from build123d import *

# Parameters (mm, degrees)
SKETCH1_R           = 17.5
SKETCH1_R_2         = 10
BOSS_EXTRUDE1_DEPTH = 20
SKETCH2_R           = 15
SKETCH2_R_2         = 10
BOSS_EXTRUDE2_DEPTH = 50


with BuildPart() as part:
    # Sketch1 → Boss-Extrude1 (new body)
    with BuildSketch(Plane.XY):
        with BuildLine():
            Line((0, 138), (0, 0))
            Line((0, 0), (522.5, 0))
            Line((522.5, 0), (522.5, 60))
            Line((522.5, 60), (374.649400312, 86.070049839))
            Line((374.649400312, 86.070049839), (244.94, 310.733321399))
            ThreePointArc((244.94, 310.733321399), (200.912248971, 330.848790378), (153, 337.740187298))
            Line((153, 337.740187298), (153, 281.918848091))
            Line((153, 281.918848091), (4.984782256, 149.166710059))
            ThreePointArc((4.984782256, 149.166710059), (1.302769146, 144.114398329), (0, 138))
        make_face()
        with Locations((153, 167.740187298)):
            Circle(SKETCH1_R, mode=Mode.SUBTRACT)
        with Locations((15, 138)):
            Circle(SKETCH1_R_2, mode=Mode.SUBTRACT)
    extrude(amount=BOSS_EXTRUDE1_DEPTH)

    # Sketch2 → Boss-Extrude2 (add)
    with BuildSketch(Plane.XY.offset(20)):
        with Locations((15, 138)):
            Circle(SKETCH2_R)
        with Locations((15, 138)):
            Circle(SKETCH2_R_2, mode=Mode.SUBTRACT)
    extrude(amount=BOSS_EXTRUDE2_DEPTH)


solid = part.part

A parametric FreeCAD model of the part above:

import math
import FreeCAD as App
import Part
import Sketcher

V = App.Vector
Q = App.Units.Quantity

doc = App.newDocument("Part")
body = doc.addObject("PartDesign::Body", "Body")

# Sketch on XY plane
sketch1 = body.newObject("Sketcher::SketchObject", "Sketch")
sketch1.AttachmentSupport = (doc.getObject("XY_Plane"), [""])
sketch1.MapMode = "FlatFace"
sketch1.addGeometry(Part.LineSegment(V(0, 138, 0), V(0, 0, 0)), False)
sketch1.addGeometry(Part.LineSegment(V(0, 0, 0), V(522, 0, 0)), False)
sketch1.addGeometry(Part.LineSegment(V(522, 0, 0), V(522, 60, 0)), False)
sketch1.addGeometry(Part.LineSegment(V(522, 60, 0), V(375, 86, 0)), False)
sketch1.addGeometry(Part.LineSegment(V(375, 86, 0), V(245, 311, 0)), False)
sketch1.addGeometry(Part.ArcOfCircle(Part.Circle(V(153, 168, 0), V(0, 0, 1), 170), math.radians(57), math.radians(90)), False)
sketch1.addGeometry(Part.LineSegment(V(153, 338, 0), V(153, 282, 0)), False)
sketch1.addGeometry(Part.LineSegment(V(153, 282, 0), V(5, 149, 0)), False)
sketch1.addGeometry(Part.ArcOfCircle(Part.Circle(V(15, 138, 0), V(0, 0, 1), 15), math.radians(132), math.radians(180)), False)
sketch1.addGeometry(Part.Circle(V(15, 138, 0), V(0, 0, 1), 10), False)
sketch1.addGeometry(Part.Circle(V(153, 168, 0), V(0, 0, 1), 18), False)
sketch1.addConstraint(Sketcher.Constraint("Coincident", 0, 2, 1, 1))
sketch1.addConstraint(Sketcher.Constraint("Coincident", 1, 2, 2, 1))
sketch1.addConstraint(Sketcher.Constraint("Coincident", 2, 2, 3, 1))
sketch1.addConstraint(Sketcher.Constraint("Coincident", 3, 2, 4, 1))
sketch1.addConstraint(Sketcher.Constraint("Coincident", 4, 2, 5, 1))
sketch1.addConstraint(Sketcher.Constraint("Coincident", 5, 2, 6, 1))
sketch1.addConstraint(Sketcher.Constraint("Coincident", 6, 2, 7, 1))
sketch1.addConstraint(Sketcher.Constraint("Tangent", 7, 2, 8, 1))
sketch1.addConstraint(Sketcher.Constraint("Tangent", 8, 2, 0, 1))
sketch1.addConstraint(Sketcher.Constraint("Vertical", 0))
sketch1.addConstraint(Sketcher.Constraint("Horizontal", 1))
sketch1.addConstraint(Sketcher.Constraint("Vertical", 2))
sketch1.addConstraint(Sketcher.Constraint("Vertical", 6))
sketch1.addConstraint(Sketcher.Constraint("Coincident", 0, 2, -1, 1))
sketch1.addConstraint(Sketcher.Constraint("Coincident", 9, 3, 8, 3))
sketch1.addConstraint(Sketcher.Constraint("Coincident", 10, 3, 5, 3))
sketch1.addConstraint(Sketcher.Constraint("Vertical", 10, 3, 5, 2))
sketch1.addConstraint(Sketcher.Constraint("Diameter", 9, 20.0))
sketch1.addConstraint(Sketcher.Constraint("Diameter", 10, 35.0))
sketch1.addConstraint(Sketcher.Constraint("Radius", 5, 170.0))
sketch1.addConstraint(Sketcher.Constraint("Radius", 8, 15.0))
sketch1.addConstraint(Sketcher.Constraint("DistanceY", 0, 2, 0, 1, 138.0))
sketch1.addConstraint(Sketcher.Constraint("DistanceY", 2, 1, 2, 2, 60.0))
sketch1.addConstraint(Sketcher.Constraint("Angle", 3, Q("170 deg")))
sketch1.addConstraint(Sketcher.Constraint("Angle", 4, Q("120 deg")))
sketch1.addConstraint(Sketcher.Constraint("DistanceX", 1, 1, 1, 2, 522.5))
sketch1.addConstraint(Sketcher.Constraint("DistanceX", -1, 1, 5, 3, 153.0))
sketch1.addConstraint(Sketcher.Constraint("DistanceX", -1, 1, 4, 2, 244.94))
sketch1.addConstraint(Sketcher.Constraint("Distance", 4, 259.418801))
sketch1.addConstraint(Sketcher.Constraint("DistanceY", 6, 2, 6, 1, 55.821339))
pad1 = body.newObject("PartDesign::Pad", "Pad")
pad1.Profile = sketch1
pad1.Length = 20

# Sketch on XY plane
sketch2 = body.newObject("Sketcher::SketchObject", "Sketch001")
sketch2.AttachmentSupport = (doc.getObject("XY_Plane"), [""])
sketch2.MapMode = "FlatFace"
sketch2.AttachmentOffset = App.Placement(V(0, 0, 20), App.Rotation())
sketch2.addGeometry(Part.Circle(V(15, 138, 0), V(0, 0, 1), 15), False)
sketch2.addGeometry(Part.Circle(V(15, 138, 0), V(0, 0, 1), 10), False)
sketch2.addConstraint(Sketcher.Constraint("Coincident", 1, 3, 0, 3))
sketch2.addConstraint(Sketcher.Constraint("Diameter", 0, 30.0))
sketch2.addConstraint(Sketcher.Constraint("Diameter", 1, 20.0))
sketch2.addConstraint(Sketcher.Constraint("DistanceX", -1, 1, 0, 3, 15.0))
sketch2.addConstraint(Sketcher.Constraint("DistanceY", -1, 1, 0, 3, 138.0))
pad2 = body.newObject("PartDesign::Pad", "Pad001")
pad2.Profile = sketch2
pad2.Length = 50

doc.recompute()
